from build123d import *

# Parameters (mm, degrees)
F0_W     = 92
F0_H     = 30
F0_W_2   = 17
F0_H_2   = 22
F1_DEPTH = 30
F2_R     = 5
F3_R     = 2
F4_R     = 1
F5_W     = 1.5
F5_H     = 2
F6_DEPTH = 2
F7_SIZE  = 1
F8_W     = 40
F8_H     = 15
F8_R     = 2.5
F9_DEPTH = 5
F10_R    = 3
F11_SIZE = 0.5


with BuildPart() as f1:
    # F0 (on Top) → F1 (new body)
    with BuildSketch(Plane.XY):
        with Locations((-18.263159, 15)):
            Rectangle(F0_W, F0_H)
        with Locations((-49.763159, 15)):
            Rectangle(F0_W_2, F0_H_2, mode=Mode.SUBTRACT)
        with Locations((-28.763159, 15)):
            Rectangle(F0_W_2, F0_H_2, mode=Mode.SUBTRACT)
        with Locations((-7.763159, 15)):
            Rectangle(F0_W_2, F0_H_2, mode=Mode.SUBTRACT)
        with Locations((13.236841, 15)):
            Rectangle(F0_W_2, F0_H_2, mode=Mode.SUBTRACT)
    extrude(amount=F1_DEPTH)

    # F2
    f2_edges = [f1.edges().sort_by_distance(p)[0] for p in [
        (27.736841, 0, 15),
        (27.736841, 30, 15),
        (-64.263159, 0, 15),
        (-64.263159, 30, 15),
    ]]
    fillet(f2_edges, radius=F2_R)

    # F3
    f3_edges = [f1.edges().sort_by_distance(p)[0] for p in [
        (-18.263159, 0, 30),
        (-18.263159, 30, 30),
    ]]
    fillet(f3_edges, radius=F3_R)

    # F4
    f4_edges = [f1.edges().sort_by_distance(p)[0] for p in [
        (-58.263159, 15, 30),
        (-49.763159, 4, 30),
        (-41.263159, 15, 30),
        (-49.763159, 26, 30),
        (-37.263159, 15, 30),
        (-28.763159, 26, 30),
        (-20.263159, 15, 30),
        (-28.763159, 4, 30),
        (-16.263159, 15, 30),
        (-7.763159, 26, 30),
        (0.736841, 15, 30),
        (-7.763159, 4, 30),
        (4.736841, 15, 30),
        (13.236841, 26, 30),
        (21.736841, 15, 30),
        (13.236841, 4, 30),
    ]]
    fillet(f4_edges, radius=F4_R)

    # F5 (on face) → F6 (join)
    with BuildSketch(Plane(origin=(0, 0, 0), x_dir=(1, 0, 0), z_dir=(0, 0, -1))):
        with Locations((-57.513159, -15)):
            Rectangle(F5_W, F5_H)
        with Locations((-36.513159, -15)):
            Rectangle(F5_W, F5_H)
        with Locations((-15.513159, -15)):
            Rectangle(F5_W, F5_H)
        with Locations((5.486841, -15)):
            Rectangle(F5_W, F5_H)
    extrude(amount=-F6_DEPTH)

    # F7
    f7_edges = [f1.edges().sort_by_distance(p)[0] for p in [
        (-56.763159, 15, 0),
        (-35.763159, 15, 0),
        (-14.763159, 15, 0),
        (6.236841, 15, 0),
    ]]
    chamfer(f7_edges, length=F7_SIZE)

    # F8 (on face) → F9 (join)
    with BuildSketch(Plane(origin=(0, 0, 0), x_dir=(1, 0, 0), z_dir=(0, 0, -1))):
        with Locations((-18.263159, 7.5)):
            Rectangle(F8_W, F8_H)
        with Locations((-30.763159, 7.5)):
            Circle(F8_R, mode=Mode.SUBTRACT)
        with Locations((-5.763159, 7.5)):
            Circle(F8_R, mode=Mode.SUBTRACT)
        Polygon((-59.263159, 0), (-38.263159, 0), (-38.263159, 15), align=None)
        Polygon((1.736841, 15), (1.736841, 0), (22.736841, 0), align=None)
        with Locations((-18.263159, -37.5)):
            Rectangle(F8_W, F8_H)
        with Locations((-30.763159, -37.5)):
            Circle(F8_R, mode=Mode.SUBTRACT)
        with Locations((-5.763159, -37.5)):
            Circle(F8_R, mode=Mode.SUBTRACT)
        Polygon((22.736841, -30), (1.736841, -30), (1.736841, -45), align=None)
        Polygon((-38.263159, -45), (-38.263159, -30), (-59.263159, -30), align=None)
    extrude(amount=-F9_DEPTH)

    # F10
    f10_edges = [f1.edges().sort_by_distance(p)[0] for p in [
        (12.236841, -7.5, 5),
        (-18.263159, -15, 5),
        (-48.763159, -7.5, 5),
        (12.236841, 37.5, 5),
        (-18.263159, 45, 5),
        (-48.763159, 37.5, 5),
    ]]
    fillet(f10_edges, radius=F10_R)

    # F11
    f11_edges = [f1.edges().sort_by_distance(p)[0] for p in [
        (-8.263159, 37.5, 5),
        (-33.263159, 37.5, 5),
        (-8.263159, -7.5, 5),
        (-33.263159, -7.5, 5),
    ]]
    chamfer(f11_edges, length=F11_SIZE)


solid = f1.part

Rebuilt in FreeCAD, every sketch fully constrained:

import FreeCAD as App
import Part
import Sketcher
from FreeCAD import Vector


def edges_at(feature, points):
    """Names of the edges that pass closest to the given points."""
    edges = feature.Shape.Edges
    near = lambda p: min(range(len(edges)), key=lambda i: edges[i].distToShape(Part.Vertex(*p))[0])
    return sorted({f"Edge{near(p) + 1}" for p in points})


def add_polygon(sketch, points):
    """Adds a closed chain of lines whose ends are joined by coincident constraints."""
    first, n = sketch.GeometryCount, len(points)
    for a, b in zip(points, points[1:] + points[:1]):
        sketch.addGeometry(Part.LineSegment(App.Vector(*a, 0), App.Vector(*b, 0)), False)
    for i in range(n):
        sketch.addConstraint(Sketcher.Constraint("Coincident", first + i, 2, first + (i + 1) % n, 1))

doc = App.newDocument("Part")
body = doc.addObject("PartDesign::Body", "Body")

sketch1 = body.newObject("Sketcher::SketchObject", "Sketch")
sketch1.AttachmentSupport = (doc.getObject("XY_Plane"), [""])
sketch1.MapMode = "FlatFace"
add_polygon(sketch1, [(-64.263159, 30), (-64.263159, 0), (27.736841, 0), (27.736841, 30)])
add_polygon(sketch1, [(-41.263159, 4), (-58.263159, 4), (-58.263159, 26), (-41.263159, 26)])
add_polygon(sketch1, [(-20.263159, 4), (-37.263159, 4), (-37.263159, 26), (-20.263159, 26)])
add_polygon(sketch1, [(0.736841, 4), (-16.263159, 4), (-16.263159, 26), (0.736841, 26)])
add_polygon(sketch1, [(21.736841, 4), (4.736841, 4), (4.736841, 26), (21.736841, 26)])
sketch1.addConstraint([
    Sketcher.Constraint("Vertical", 0),
    Sketcher.Constraint("Horizontal", 1),
    Sketcher.Constraint("Vertical", 2),
    Sketcher.Constraint("Horizontal", 3),
    Sketcher.Constraint("Horizontal", 4),
    Sketcher.Constraint("Vertical", 5),
    Sketcher.Constraint("Horizontal", 6),
    Sketcher.Constraint("Vertical", 7),
    Sketcher.Constraint("Horizontal", 8),
    Sketcher.Constraint("Vertical", 9),
    Sketcher.Constraint("Horizontal", 10),
    Sketcher.Constraint("Vertical", 11),
    Sketcher.Constraint("Horizontal", 12),
    Sketcher.Constraint("Vertical", 13),
    Sketcher.Constraint("Horizontal", 14),
    Sketcher.Constraint("Vertical", 15),
    Sketcher.Constraint("Horizontal", 16),
    Sketcher.Constraint("Vertical", 17),
    Sketcher.Constraint("Horizontal", 18),
    Sketcher.Constraint("Vertical", 19),
    Sketcher.Constraint("PointOnObject", 0, 2, -1),
    Sketcher.Constraint("Horizontal", 7, 2, 8, 2),
    Sketcher.Constraint("Horizontal", 6, 2, 9, 2),
    Sketcher.Constraint("Horizontal", 11, 2, 12, 2),
    Sketcher.Constraint("Horizontal", 10, 2, 13, 2),
    Sketcher.Constraint("Horizontal", 15, 2, 16, 2),
    Sketcher.Constraint("Horizontal", 14, 2, 17, 2),
    Sketcher.Constraint("Equal", 6, 8),
    Sketcher.Constraint("Equal", 10, 12),
    Sketcher.Constraint("Equal", 14, 16),
    Sketcher.Constraint("DistanceX", 1, 1, 1, 2, 92.0),
    Sketcher.Constraint("DistanceX", 4, 2, 4, 1, 17.0),
    Sketcher.Constraint("DistanceY", 0, 2, 0, 1, 30.0),
    Sketcher.Constraint("DistanceY", 5, 1, 5, 2, 22.0),
    Sketcher.Constraint("DistanceY", -1, 1, 4, 2, 4.0),
    Sketcher.Constraint("DistanceX", 0, 2, 4, 2, 6.0),
    Sketcher.Constraint("DistanceX", 7, 2, 8, 2, 4.0),
    Sketcher.Constraint("DistanceX", 11, 2, 12, 2, 4.0),
    Sketcher.Constraint("DistanceX", 15, 2, 16, 2, 4.0),
    Sketcher.Constraint("DistanceX", 0, 2, -1, 1, 64.263159),
])
pad1 = body.newObject("PartDesign::Pad", "Pad")
pad1.Profile = sketch1
pad1.Length = 30
doc.recompute()

fillet = body.newObject("PartDesign::Fillet", "Fillet")
fillet.Base = (pad1, edges_at(pad1, [
    (27.737, 0, 15),
    (27.737, 30, 15),
    (-64.263, 0, 15),
    (-64.263, 30, 15),
]))
fillet.Radius = 5
doc.recompute()

fillet2 = body.newObject("PartDesign::Fillet", "Fillet001")
fillet2.Base = (fillet, edges_at(fillet, [(-18.263, 0, 30), (-18.263, 30, 30)]))
fillet2.Radius = 2
doc.recompute()

fillet3 = body.newObject("PartDesign::Fillet", "Fillet002")
fillet3.Base = (fillet2, edges_at(fillet2, [
    (-58.263, 15, 30),
    (-49.763, 4, 30),
    (-41.263, 15, 30),
    (-49.763, 26, 30),
    (-37.263, 15, 30),
    (-28.763, 26, 30),
    (-20.263, 15, 30),
    (-28.763, 4, 30),
    (-16.263, 15, 30),
    (-7.763, 26, 30),
    (0.737, 15, 30),
    (-7.763, 4, 30),
    (4.737, 15, 30),
    (13.237, 26, 30),
    (21.737, 15, 30),
    (13.237, 4, 30),
]))
fillet3.Radius = 1

sketch2 = body.newObject("Sketcher::SketchObject", "Sketch001")
sketch2.AttachmentSupport = (doc.getObject("XY_Plane"), [""])
sketch2.MapMode = "FlatFace"
add_polygon(sketch2, [(-58.263159, 14), (-58.263159, 16), (-56.763159, 16), (-56.763159, 14)])
add_polygon(sketch2, [(-37.263159, 14), (-37.263159, 16), (-35.763159, 16), (-35.763159, 14)])
add_polygon(sketch2, [(-16.263159, 14), (-16.263159, 16), (-14.763159, 16), (-14.763159, 14)])
add_polygon(sketch2, [(4.736841, 14), (4.736841, 16), (6.236841, 16), (6.236841, 14)])
sketch2.addConstraint([
    Sketcher.Constraint("Vertical", 0),
    Sketcher.Constraint("Horizontal", 1),
    Sketcher.Constraint("Vertical", 2),
    Sketcher.Constraint("Horizontal", 3),
    Sketcher.Constraint("Vertical", 4),
    Sketcher.Constraint("Horizontal", 5),
    Sketcher.Constraint("Vertical", 6),
    Sketcher.Constraint("Horizontal", 7),
    Sketcher.Constraint("Vertical", 8),
    Sketcher.Constraint("Horizontal", 9),
    Sketcher.Constraint("Vertical", 10),
    Sketcher.Constraint("Horizontal", 11),
    Sketcher.Constraint("Vertical", 12),
    Sketcher.Constraint("Horizontal", 13),
    Sketcher.Constraint("Vertical", 14),
    Sketcher.Constraint("Horizontal", 15),
    Sketcher.Constraint("Horizontal", 1, 2, 4, 2),
    Sketcher.Constraint("Horizontal", 3, 2, 6, 2),
    Sketcher.Constraint("Horizontal", 5, 2, 8, 2),
    Sketcher.Constraint("Horizontal", 7, 2, 10, 2),
    Sketcher.Constraint("Horizontal", 9, 2, 12, 2),
    Sketcher.Constraint("Horizontal", 11, 2, 14, 2),
    Sketcher.Constraint("Equal", 3, 5),
    Sketcher.Constraint("Equal", 7, 9),
    Sketcher.Constraint("Equal", 11, 13),
    Sketcher.Constraint("DistanceY", 0, 1, 0, 2, 2.0),
    Sketcher.Constraint("DistanceX", 1, 1, 1, 2, 1.5),
    Sketcher.Constraint("DistanceY", -1, 1, 0, 2, 16.0),
    Sketcher.Constraint("DistanceX", 0, 2, 4, 2, 21.0),
    Sketcher.Constraint("DistanceX", 4, 2, 8, 2, 21.0),
    Sketcher.Constraint("DistanceX", 8, 2, 12, 2, 21.0),
    Sketcher.Constraint("DistanceX", 0, 2, -1, 1, 58.263159),
])
pad2 = body.newObject("PartDesign::Pad", "Pad001")
pad2.Profile = sketch2
pad2.Length = 2
doc.recompute()

chamfer = body.newObject("PartDesign::Chamfer", "Chamfer")
chamfer.Base = (pad2, edges_at(pad2, [
    (-56.763, 15, 0),
    (-35.763, 15, 0),
    (-14.763, 15, 0),
    (6.237, 15, 0),
]))
chamfer.Size = 1

sketch3 = body.newObject("Sketcher::SketchObject", "Sketch002")
sketch3.AttachmentSupport = (doc.getObject("XY_Plane"), [""])
sketch3.MapMode = "FlatFace"
add_polygon(sketch3, [(1.736841, -15), (-38.263159, -15), (-59.263159, 0), (22.736841, 0)])
sketch3.addGeometry(Part.Circle(Vector(-30.763159, -7.5, 0), Vector(0, 0, 1), 2.5), False)
sketch3.addGeometry(Part.Circle(Vector(-5.763159, -7.5, 0), Vector(0, 0, 1), 2.5), False)
add_polygon(sketch3, [(-38.263159, 45), (1.736841, 45), (22.736841, 30), (-59.263159, 30)])
sketch3.addGeometry(Part.Circle(Vector(-30.763159, 37.5, 0), Vector(0, 0, 1), 2.5), False)
sketch3.addGeometry(Part.Circle(Vector(-5.763159, 37.5, 0), Vector(0, 0, 1), 2.5), False)
sketch3.addConstraint([
    Sketcher.Constraint("Horizontal", 0),
    Sketcher.Constraint("Horizontal", 2),
    Sketcher.Constraint("Horizontal", 6),
    Sketcher.Constraint("Horizontal", 8),
    Sketcher.Constraint("Equal", 4, 5),
    Sketcher.Constraint("Equal", 5, 10),
    Sketcher.Constraint("Equal", 10, 11),
    Sketcher.Constraint("PointOnObject", 1, 2, -1),
    Sketcher.Constraint("Parallel", 1, 7),
    Sketcher.Constraint("Parallel", 3, 9),
    Sketcher.Constraint("Horizontal", 4, 3, 5, 3),
    Sketcher.Constraint("Horizontal", 10, 3, 11, 3),
    Sketcher.Constraint("Vertical", 4, 3, 10, 3),
    Sketcher.Constraint("Vertical", 5, 3, 11, 3),
    Sketcher.Constraint("Vertical", 3, 2, 6, 2),
    Sketcher.Constraint("Vertical", 2, 2, 7, 2),
    Sketcher.Constraint("Vertical", 1, 2, 8, 2),
    Sketcher.Constraint("Vertical", 0, 2, 9, 2),
    Sketcher.Constraint("Diameter", 4, 5.0),
    Sketcher.Constraint("DistanceX", 0, 2, 0, 1, 40.0),
    Sketcher.Constraint("DistanceX", 2, 1, 2, 2, 82.0),
    Sketcher.Constraint("DistanceY", 0, 2, -1, 1, 15.0),
    Sketcher.Constraint("DistanceY", -1, 1, 6, 2, 45.0),
    Sketcher.Constraint("DistanceX", 4, 3, 5, 3, 25.0),
    Sketcher.Constraint("DistanceY", 4, 3, 10, 3, 45.0),
    Sketcher.Constraint("DistanceY", 4, 3, -1, 1, 7.5),
    Sketcher.Constraint("DistanceX", 0, 2, 4, 3, 7.5),
    Sketcher.Constraint("DistanceX", 4, 3, -1, 1, 30.763159),
])
pad3 = body.newObject("PartDesign::Pad", "Pad002")
pad3.Profile = sketch3
pad3.Length = 5
doc.recompute()

fillet4 = body.newObject("PartDesign::Fillet", "Fillet003")
fillet4.Base = (pad3, edges_at(pad3, [
    (12.237, -7.5, 5),
    (-18.263, -15, 5),
    (-48.763, -7.5, 5),
    (12.237, 37.5, 5),
    (-18.263, 45, 5),
    (-48.763, 37.5, 5),
]))
fillet4.Radius = 3
doc.recompute()

chamfer2 = body.newObject("PartDesign::Chamfer", "Chamfer001")
chamfer2.Base = (fillet4, edges_at(fillet4, [
    (-8.263, 37.5, 5),
    (-33.263, 37.5, 5),
    (-8.263, -7.5, 5),
    (-33.263, -7.5, 5),
]))
chamfer2.Size = 0.5

doc.recompute()
